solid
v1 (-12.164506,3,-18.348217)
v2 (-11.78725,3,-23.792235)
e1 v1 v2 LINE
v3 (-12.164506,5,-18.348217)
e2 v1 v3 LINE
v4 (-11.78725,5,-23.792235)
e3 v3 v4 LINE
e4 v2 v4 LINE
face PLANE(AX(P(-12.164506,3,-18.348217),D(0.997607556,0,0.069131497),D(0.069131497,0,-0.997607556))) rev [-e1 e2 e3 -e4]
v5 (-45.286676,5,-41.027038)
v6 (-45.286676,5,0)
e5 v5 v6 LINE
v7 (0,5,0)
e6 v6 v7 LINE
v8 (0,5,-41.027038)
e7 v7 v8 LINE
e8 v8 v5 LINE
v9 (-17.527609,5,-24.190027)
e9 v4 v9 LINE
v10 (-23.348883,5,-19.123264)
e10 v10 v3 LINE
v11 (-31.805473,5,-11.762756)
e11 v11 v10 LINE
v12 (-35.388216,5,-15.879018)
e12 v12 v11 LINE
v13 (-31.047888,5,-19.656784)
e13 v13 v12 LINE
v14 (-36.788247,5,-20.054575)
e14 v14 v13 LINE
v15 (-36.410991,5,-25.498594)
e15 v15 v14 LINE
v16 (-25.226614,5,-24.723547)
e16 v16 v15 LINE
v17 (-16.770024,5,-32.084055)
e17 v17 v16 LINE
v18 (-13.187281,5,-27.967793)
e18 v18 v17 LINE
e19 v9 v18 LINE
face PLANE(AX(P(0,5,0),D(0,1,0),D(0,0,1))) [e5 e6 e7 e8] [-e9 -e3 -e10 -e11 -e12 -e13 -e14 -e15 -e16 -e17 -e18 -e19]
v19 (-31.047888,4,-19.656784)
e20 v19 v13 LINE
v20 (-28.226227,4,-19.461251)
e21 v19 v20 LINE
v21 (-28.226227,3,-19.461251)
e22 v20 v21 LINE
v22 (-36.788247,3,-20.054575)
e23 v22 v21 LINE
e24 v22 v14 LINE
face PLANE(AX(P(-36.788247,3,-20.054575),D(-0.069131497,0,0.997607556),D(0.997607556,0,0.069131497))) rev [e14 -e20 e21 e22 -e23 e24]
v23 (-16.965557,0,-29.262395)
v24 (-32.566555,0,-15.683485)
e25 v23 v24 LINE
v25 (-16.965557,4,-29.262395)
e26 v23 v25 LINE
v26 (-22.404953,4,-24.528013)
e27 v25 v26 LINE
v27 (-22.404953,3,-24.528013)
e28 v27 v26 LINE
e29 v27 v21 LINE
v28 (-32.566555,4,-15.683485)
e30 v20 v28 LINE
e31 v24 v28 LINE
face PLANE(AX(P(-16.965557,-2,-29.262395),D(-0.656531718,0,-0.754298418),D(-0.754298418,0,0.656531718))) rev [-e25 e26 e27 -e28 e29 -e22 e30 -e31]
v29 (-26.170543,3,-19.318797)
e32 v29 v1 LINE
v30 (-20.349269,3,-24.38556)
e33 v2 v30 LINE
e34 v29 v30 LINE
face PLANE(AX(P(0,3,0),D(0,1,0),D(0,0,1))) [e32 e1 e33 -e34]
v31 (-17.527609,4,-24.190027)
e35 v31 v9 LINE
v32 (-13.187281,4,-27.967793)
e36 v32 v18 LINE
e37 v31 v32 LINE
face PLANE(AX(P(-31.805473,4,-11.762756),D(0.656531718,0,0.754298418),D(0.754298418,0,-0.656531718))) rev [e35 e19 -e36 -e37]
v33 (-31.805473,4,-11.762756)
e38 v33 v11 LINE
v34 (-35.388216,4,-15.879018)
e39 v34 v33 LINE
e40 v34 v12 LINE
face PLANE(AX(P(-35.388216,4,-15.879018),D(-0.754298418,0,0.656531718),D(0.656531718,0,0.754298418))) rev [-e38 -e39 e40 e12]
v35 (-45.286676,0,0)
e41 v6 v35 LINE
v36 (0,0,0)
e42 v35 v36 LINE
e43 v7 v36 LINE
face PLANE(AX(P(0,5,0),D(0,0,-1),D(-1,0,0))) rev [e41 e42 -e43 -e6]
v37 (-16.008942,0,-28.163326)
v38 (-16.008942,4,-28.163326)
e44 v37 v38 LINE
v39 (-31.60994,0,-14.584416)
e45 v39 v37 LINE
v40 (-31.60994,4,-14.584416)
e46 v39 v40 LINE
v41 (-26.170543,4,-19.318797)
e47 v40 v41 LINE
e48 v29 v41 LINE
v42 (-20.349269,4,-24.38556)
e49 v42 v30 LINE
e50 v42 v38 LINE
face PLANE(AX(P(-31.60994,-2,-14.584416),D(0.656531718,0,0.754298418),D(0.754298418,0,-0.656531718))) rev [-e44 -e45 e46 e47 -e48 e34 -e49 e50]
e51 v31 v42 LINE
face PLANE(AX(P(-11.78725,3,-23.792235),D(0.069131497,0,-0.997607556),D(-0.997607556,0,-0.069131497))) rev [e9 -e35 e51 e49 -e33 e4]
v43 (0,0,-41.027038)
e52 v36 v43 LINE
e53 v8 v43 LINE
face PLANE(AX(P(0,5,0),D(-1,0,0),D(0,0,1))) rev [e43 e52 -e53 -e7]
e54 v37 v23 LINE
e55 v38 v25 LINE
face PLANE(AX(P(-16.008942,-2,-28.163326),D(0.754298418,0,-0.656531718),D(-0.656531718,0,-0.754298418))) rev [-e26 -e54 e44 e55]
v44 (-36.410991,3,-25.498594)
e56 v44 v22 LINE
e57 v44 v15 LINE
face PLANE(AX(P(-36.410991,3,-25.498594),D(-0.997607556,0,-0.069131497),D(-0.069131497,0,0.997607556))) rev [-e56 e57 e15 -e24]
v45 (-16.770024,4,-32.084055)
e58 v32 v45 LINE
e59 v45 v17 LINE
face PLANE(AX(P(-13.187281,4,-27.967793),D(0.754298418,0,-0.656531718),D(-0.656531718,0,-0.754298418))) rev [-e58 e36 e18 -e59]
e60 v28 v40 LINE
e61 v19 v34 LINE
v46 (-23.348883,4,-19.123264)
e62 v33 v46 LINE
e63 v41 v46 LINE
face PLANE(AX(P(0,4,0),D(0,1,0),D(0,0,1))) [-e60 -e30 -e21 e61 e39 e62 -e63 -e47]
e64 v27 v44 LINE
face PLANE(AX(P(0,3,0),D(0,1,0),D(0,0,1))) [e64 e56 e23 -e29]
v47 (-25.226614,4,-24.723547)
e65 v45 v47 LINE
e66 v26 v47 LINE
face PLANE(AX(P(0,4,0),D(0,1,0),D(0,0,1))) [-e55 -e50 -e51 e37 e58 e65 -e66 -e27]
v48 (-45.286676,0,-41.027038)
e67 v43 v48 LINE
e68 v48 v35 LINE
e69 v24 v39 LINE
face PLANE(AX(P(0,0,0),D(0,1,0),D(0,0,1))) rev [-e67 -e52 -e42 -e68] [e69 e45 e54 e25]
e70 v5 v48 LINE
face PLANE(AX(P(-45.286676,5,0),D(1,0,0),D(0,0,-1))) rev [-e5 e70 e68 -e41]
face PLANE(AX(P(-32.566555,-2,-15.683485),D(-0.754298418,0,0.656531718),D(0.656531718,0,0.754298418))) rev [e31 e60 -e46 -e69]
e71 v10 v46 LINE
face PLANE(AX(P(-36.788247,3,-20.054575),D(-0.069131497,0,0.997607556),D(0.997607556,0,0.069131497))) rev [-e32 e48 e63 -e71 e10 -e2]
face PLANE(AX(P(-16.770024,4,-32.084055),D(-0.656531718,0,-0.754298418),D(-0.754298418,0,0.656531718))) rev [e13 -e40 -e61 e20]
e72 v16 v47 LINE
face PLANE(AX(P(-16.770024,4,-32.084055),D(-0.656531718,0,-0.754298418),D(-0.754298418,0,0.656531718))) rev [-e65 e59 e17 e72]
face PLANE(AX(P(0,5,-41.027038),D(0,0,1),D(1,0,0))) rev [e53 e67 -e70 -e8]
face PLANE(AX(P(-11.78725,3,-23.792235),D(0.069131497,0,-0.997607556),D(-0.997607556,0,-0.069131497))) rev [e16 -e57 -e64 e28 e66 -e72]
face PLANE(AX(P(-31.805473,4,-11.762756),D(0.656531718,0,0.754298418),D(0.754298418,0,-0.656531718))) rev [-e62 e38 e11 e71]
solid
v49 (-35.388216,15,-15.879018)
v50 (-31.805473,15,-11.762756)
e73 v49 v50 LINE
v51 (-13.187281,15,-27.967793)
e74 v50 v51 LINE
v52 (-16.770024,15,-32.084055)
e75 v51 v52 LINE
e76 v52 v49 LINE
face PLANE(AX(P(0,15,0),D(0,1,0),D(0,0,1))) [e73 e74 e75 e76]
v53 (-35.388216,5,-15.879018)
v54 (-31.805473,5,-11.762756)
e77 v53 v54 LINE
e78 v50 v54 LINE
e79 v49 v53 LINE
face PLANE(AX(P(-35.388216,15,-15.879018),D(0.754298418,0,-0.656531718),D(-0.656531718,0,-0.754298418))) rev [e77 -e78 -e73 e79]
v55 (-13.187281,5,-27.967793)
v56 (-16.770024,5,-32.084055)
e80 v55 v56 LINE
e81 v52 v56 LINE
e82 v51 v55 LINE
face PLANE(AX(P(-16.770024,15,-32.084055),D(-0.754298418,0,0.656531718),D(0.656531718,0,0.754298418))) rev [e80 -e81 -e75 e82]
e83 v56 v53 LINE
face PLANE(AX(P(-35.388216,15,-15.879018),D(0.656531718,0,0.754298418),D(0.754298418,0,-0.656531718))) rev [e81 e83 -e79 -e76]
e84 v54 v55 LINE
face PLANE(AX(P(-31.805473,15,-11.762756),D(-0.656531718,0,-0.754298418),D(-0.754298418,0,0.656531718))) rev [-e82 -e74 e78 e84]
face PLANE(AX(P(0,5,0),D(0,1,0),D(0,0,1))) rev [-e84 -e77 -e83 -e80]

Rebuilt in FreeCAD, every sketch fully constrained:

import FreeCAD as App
import Part
import Sketcher
Q = App.Units.Quantity


def add_polygon(sketch, points):
    """Adds a closed chain of lines whose ends are joined by coincident constraints."""
    first, n = sketch.GeometryCount, len(points)
    for a, b in zip(points, points[1:] + points[:1]):
        sketch.addGeometry(Part.LineSegment(App.Vector(*a, 0), App.Vector(*b, 0)), False)
    for i in range(n):
        sketch.addConstraint(Sketcher.Constraint("Coincident", first + i, 2, first + (i + 1) % n, 1))

doc = App.newDocument("Part")
body = doc.addObject("PartDesign::Body", "Body")

sketch1 = body.newObject("Sketcher::SketchObject", "Sketch")
sketch1.AttachmentSupport = (doc.getObject("XZ_Plane"), [""])
sketch1.MapMode = "FlatFace"
add_polygon(sketch1, [(-45, -41), (-45, 0), (0, 0), (0, -41)])
sketch1.addConstraint(Sketcher.Constraint("Vertical", 0))
sketch1.addConstraint(Sketcher.Constraint("Horizontal", 1))
sketch1.addConstraint(Sketcher.Constraint("Vertical", 2))
sketch1.addConstraint(Sketcher.Constraint("Horizontal", 3))
sketch1.addConstraint(Sketcher.Constraint("Coincident", 1, 2, -1, 1))
sketch1.addConstraint(Sketcher.Constraint("DistanceY", 0, 1, 0, 2, Q("41.027038 mm")))
sketch1.addConstraint(Sketcher.Constraint("DistanceX", 1, 1, 1, 2, Q("45.286676 mm")))
pad1 = body.newObject("PartDesign::Pad", "Pad")
pad1.Profile = sketch1
pad1.Length = 5
pad1.Reversed = True

sketch2 = body.newObject("Sketcher::SketchObject", "Sketch001")
sketch2.AttachmentSupport = (doc.getObject("XZ_Plane"), [""])
sketch2.MapMode = "FlatFace"
sketch2.AttachmentOffset = App.Placement(App.Vector(0, 0, -5), App.Rotation())
add_polygon(sketch2, [(-35, -16), (-32, -12), (-13, -28), (-17, -32)])
sketch2.addConstraint(Sketcher.Constraint("Perpendicular", 0, 1))
sketch2.addConstraint(Sketcher.Constraint("Perpendicular", 1, 2))
sketch2.addConstraint(Sketcher.Constraint("Perpendicular", 2, 3))
sketch2.addConstraint(Sketcher.Constraint("DistanceY", 2, 2, 0, 2, Q("20.321299 mm")))
sketch2.addConstraint(Sketcher.Constraint("DistanceX", 1, 2, -1, 1, Q("13.187281 mm")))
sketch2.addConstraint(Sketcher.Constraint("DistanceY", 3, 2, -1, 1, Q("15.879018 mm")))
sketch2.addConstraint(Sketcher.Constraint("DistanceX", 0, 2, 1, 2, Q("18.618192 mm")))
sketch2.addConstraint(Sketcher.Constraint("DistanceX", 0, 2, 2, 2, Q("15.03545 mm")))
pocket1 = body.newObject("PartDesign::Pocket", "Pocket")
pocket1.Profile = sketch2
pocket1.Length = 1
pocket1.Reversed = True

sketch3 = body.newObject("Sketcher::SketchObject", "Sketch002")
sketch3.AttachmentSupport = (doc.getObject("XZ_Plane"), [""])
sketch3.MapMode = "FlatFace"
sketch3.AttachmentOffset = App.Placement(App.Vector(0, 0, -5), App.Rotation())
add_polygon(sketch3, [(-36, -25), (-37, -20), (-12, -18), (-12, -24)])
sketch3.addConstraint(Sketcher.Constraint("Perpendicular", 0, 1))
sketch3.addConstraint(Sketcher.Constraint("Perpendicular", 1, 2))
sketch3.addConstraint(Sketcher.Constraint("Perpendicular", 2, 3))
sketch3.addConstraint(Sketcher.Constraint("DistanceX", 2, 2, -1, 1, Q("11.78725 mm")))
sketch3.addConstraint(Sketcher.Constraint("DistanceX", 3, 2, -1, 1, Q("36.410991 mm")))
sketch3.addConstraint(Sketcher.Constraint("DistanceY", 0, 2, 1, 2, Q("1.706358 mm")))
sketch3.addConstraint(Sketcher.Constraint("DistanceY", 2, 2, 1, 2, Q("5.444018 mm")))
sketch3.addConstraint(Sketcher.Constraint("DistanceY", 0, 2, -1, 1, Q("20.054575 mm")))
pocket2 = body.newObject("PartDesign::Pocket", "Pocket001")
pocket2.Profile = sketch3
pocket2.Length = 2
pocket2.Reversed = True

sketch4 = body.newObject("Sketcher::SketchObject", "Sketch003")
sketch4.AttachmentSupport = (doc.getObject("XZ_Plane"), [""])
sketch4.MapMode = "FlatFace"
sketch4.AttachmentOffset = App.Placement(App.Vector(0, 0, -5), App.Rotation())
add_polygon(sketch4, [(-32.6, -15.7), (-31.6, -14.6), (-16, -28.2), (-17, -29.3)])
sketch4.addConstraint(Sketcher.Constraint("Perpendicular", 0, 1))
sketch4.addConstraint(Sketcher.Constraint("Perpendicular", 1, 2))
sketch4.addConstraint(Sketcher.Constraint("Perpendicular", 2, 3))
sketch4.addConstraint(Sketcher.Constraint("DistanceX", 0, 2, 1, 2, Q("15.600998 mm")))
sketch4.addConstraint(Sketcher.Constraint("DistanceX", 0, 2, -1, 1, Q("31.60994 mm")))
sketch4.addConstraint(Sketcher.Constraint("DistanceY", 1, 2, 0, 2, Q("13.57891 mm")))
sketch4.addConstraint(Sketcher.Constraint("DistanceY", 2, 2, 1, 2, Q("1.099069 mm")))
sketch4.addConstraint(Sketcher.Constraint("DistanceY", 0, 2, -1, 1, Q("14.584416 mm")))
pocket3 = body.newObject("PartDesign::Pocket", "Pocket002")
pocket3.Profile = sketch4
pocket3.Length = 7
pocket3.Reversed = True
body2 = doc.addObject("PartDesign::Body", "Body001")

sketch5 = body2.newObject("Sketcher::SketchObject", "Sketch004")
sketch5.AttachmentSupport = (doc.getObject("XZ_Plane001"), [""])
sketch5.MapMode = "FlatFace"
sketch5.AttachmentOffset = App.Placement(App.Vector(0, 0, -5), App.Rotation())
add_polygon(sketch5, [(-17, -32), (-35, -16), (-32, -12), (-13, -28)])
sketch5.addConstraint(Sketcher.Constraint("Perpendicular", 0, 1))
sketch5.addConstraint(Sketcher.Constraint("Perpendicular", 1, 2))
sketch5.addConstraint(Sketcher.Constraint("Perpendicular", 2, 3))
sketch5.addConstraint(Sketcher.Constraint("DistanceY", 3, 2, 1, 2, Q("20.321299 mm")))
sketch5.addConstraint(Sketcher.Constraint("DistanceY", 0, 2, -1, 1, Q("15.879018 mm")))
sketch5.addConstraint(Sketcher.Constraint("DistanceX", 2, 2, -1, 1, Q("13.187281 mm")))
sketch5.addConstraint(Sketcher.Constraint("DistanceX", 1, 2, 2, 2, Q("18.618192 mm")))
sketch5.addConstraint(Sketcher.Constraint("DistanceX", 1, 2, 3, 2, Q("15.03545 mm")))
pad2 = body2.newObject("PartDesign::Pad", "Pad001")
pad2.Profile = sketch5
pad2.Length = 10
pad2.Reversed = True
body3 = doc.addObject("PartDesign::Body", "Body002")
doc.recompute()

body2.Placement = App.Placement(App.Vector(-22.615905, 0, 10.752815), App.Rotation(App.Vector(0, -1, 0), 45))
boolean = body3.newObject("PartDesign::Boolean", "Boolean")
boolean.Type = "Fuse"
boolean.addObjects([body2])
body4 = doc.addObject("PartDesign::Body", "Body003")
doc.recompute()

body3.Placement = App.Placement(App.Vector(8.388472, 0, -23.595248), App.Rotation(App.Vector(0, 1, 0), 45))
boolean2 = body4.newObject("PartDesign::Boolean", "Boolean001")
boolean2.Type = "Fuse"
boolean2.addObjects([body3])

doc.recompute()
